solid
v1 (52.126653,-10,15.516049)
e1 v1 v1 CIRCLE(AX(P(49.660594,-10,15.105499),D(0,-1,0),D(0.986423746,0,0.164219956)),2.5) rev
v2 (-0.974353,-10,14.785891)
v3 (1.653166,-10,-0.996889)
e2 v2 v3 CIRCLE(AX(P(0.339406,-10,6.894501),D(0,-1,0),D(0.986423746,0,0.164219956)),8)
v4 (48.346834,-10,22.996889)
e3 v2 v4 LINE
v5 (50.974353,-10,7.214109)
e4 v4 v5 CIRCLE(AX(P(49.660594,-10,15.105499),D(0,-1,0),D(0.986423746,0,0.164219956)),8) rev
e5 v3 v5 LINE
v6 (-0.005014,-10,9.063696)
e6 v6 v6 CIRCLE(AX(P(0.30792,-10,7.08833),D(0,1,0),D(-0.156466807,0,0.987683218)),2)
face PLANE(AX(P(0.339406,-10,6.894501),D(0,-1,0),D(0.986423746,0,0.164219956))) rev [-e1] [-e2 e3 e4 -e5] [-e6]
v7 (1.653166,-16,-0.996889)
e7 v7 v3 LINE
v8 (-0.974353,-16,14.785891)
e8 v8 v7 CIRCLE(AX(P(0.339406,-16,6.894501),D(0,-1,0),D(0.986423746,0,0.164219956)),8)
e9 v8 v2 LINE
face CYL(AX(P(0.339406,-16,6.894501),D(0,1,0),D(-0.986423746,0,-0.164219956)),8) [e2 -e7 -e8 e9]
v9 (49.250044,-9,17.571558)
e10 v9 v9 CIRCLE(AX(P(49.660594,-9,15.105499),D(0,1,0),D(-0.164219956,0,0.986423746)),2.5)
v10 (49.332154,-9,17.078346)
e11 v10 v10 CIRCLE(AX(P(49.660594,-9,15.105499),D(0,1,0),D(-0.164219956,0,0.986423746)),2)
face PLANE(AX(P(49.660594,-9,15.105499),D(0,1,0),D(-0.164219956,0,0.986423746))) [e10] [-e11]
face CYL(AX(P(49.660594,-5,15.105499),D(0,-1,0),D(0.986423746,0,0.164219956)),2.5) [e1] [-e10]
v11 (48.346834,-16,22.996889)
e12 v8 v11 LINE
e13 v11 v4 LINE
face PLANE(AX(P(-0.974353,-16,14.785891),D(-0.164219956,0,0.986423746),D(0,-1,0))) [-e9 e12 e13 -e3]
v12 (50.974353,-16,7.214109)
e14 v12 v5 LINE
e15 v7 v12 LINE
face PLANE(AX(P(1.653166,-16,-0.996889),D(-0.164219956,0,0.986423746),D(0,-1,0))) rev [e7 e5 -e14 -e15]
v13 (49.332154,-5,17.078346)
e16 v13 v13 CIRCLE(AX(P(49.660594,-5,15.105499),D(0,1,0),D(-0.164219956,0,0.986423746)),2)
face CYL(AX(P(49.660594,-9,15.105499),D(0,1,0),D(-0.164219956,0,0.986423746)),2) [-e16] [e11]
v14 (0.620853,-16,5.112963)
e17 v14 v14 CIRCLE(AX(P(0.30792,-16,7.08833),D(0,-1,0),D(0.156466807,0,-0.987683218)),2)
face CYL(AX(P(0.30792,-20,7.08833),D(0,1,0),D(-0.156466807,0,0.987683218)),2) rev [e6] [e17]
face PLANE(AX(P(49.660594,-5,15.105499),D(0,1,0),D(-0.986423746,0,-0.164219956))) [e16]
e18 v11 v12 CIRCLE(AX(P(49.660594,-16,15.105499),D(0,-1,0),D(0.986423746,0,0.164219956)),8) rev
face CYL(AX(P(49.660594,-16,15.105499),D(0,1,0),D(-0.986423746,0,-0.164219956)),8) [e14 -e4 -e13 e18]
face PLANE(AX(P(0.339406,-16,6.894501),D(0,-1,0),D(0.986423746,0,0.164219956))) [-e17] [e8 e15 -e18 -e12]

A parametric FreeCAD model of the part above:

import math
import FreeCAD as App
import Part
import Sketcher
Q = App.Units.Quantity

doc = App.newDocument("Part")
body = doc.addObject("PartDesign::Body", "Body")

# Sketch on XY plane
sketch1 = doc.addObject("Sketcher::SketchObject", "Sketch")
body.addObject(sketch1)
sketch1.AttachmentSupport = (doc.XY_Plane, [""])
sketch1.MapMode = "FlatFace"
sketch1.addGeometry([
    Part.LineSegment(App.Vector(50, 8, 0), App.Vector(0, 8, 0)),
    Part.ArcOfCircle(Part.Circle(App.Vector(0, 0, 0), App.Vector(0, 0, 1), 8), math.radians(90), math.radians(270)),
    Part.LineSegment(App.Vector(0, -8, 0), App.Vector(50, -8, 0)),
    Part.ArcOfCircle(Part.Circle(App.Vector(50, 0, 0), App.Vector(0, 0, 1), 8), math.radians(-90), math.radians(90)),
], False)
sketch1.addConstraint([
    Sketcher.Constraint("Tangent", 0, 2, 1, 1),
    Sketcher.Constraint("Tangent", 1, 2, 2, 1),
    Sketcher.Constraint("Tangent", 2, 2, 3, 1),
    Sketcher.Constraint("Tangent", 3, 2, 0, 1),
    Sketcher.Constraint("Horizontal", 0),
    Sketcher.Constraint("Horizontal", 2),
    Sketcher.Constraint("Coincident", 1, 3, -1, 1),
    Sketcher.Constraint("Radius", 1, Q("8 mm")),
    Sketcher.Constraint("DistanceX", 0, 2, 0, 1, Q("50 mm")),
])
pad1 = doc.addObject("PartDesign::Pad", "Pad")
body.addObject(pad1)
pad1.Profile = sketch1
pad1.Length = 6

# Sketch on XY plane
sketch2 = doc.addObject("Sketcher::SketchObject", "Sketch001")
body.addObject(sketch2)
sketch2.AttachmentSupport = (doc.XY_Plane, [""])
sketch2.MapMode = "FlatFace"
sketch2.addGeometry(Part.Circle(App.Vector(50, 0, 0), App.Vector(0, 0, 1), 2.5), False)
sketch2.addConstraint([
    Sketcher.Constraint("PointOnObject", 0, 3, -1),
    Sketcher.Constraint("Diameter", 0, Q("5 mm")),
    Sketcher.Constraint("DistanceX", -1, 1, 0, 3, Q("50 mm")),
])
pad2 = doc.addObject("PartDesign::Pad", "Pad001")
body.addObject(pad2)
pad2.Profile = sketch2
pad2.Length = 5
pad2.Reversed = True
body2 = doc.addObject("PartDesign::Body", "Body001")
doc.recompute()

body.Placement = App.Placement(App.Vector(0, -11, 11), App.Rotation(App.Vector(-1, 0, 0), 90))
boolean = doc.addObject("PartDesign::Boolean", "Boolean")
body2.addObject(boolean)
boolean.Type = "Fuse"
boolean.addObjects([body])

# Sketch on XZ plane
sketch3 = doc.addObject("Sketcher::SketchObject", "Sketch002")
body2.addObject(sketch3)
sketch3.AttachmentSupport = (doc.getObject("XZ_Plane001"), [""])
sketch3.MapMode = "FlatFace"
sketch3.AttachmentOffset = App.Placement(App.Vector(0, 0, 12), App.Rotation())
sketch3.addGeometry([
    Part.Circle(App.Vector(50, 11, 0), App.Vector(0, 0, 1), 2.5),
    Part.Circle(App.Vector(50, 11, 0), App.Vector(0, 0, 1), 2),
], False)
sketch3.addConstraint([
    Sketcher.Constraint("Coincident", 1, 3, 0, 3),
    Sketcher.Constraint("Diameter", 0, Q("5 mm")),
    Sketcher.Constraint("Diameter", 1, Q("4 mm")),
    Sketcher.Constraint("DistanceX", -1, 1, 0, 3, Q("50 mm")),
    Sketcher.Constraint("DistanceY", -1, 1, 0, 3, Q("11 mm")),
])
pocket1 = doc.addObject("PartDesign::Pocket", "Pocket")
body2.addObject(pocket1)
pocket1.Profile = sketch3
pocket1.Length = 4
pocket1.Reversed = True
body3 = doc.addObject("PartDesign::Body", "Body002")
doc.recompute()

body2.Placement = App.Placement(App.Vector(-1.74546, 0, 5.461013), App.Rotation(App.Vector(0.952528606, 0, 0.304449099), 180))
boolean2 = doc.addObject("PartDesign::Boolean", "Boolean001")
body3.addObject(boolean2)
boolean2.Type = "Fuse"
boolean2.addObjects([body2])
body4 = doc.addObject("PartDesign::Body", "Body003")
doc.recompute()

body3.Placement = App.Placement(App.Vector(-1.788142, 0, 16.328738), App.Rotation(App.Vector(0, 1, 0), 35))
boolean3 = doc.addObject("PartDesign::Boolean", "Boolean002")
body4.addObject(boolean3)
boolean3.Type = "Fuse"
boolean3.addObjects([body3])
body5 = doc.addObject("PartDesign::Body", "Body004")
doc.recompute()

body4.Placement = App.Placement(App.Vector(0, 0, 22), App.Rotation(App.Vector(1, 0, 0), 180))
boolean4 = doc.addObject("PartDesign::Boolean", "Boolean003")
body5.addObject(boolean4)
boolean4.Type = "Fuse"
boolean4.addObjects([body4])

# Sketch on XZ plane
sketch4 = doc.addObject("Sketcher::SketchObject", "Sketch003")
body5.addObject(sketch4)
sketch4.AttachmentSupport = (doc.getObject("XZ_Plane004"), [""])
sketch4.MapMode = "FlatFace"
sketch4.AttachmentOffset = App.Placement(App.Vector(0, 0, 11), App.Rotation())
sketch4.addGeometry(Part.Circle(App.Vector(0, 11, 0), App.Vector(0, 0, 1), 2), False)
sketch4.addConstraint([
    Sketcher.Constraint("PointOnObject", 0, 3, -2),
    Sketcher.Constraint("Diameter", 0, Q("4 mm")),
    Sketcher.Constraint("DistanceY", -1, 1, 0, 3, Q("11 mm")),
])
pocket2 = doc.addObject("PartDesign::Pocket", "Pocket001")
body5.addObject(pocket2)
pocket2.Profile = sketch4
pocket2.Length = 10
body6 = doc.addObject("PartDesign::Body", "Body005")
doc.recompute()

body5.Placement = App.Placement(App.Vector(-1.413215, -21, 17.952845), App.Rotation(App.Vector(0.996916049, 0, 0.078475418), 180))
boolean5 = doc.addObject("PartDesign::Boolean", "Boolean004")
body6.addObject(boolean5)
boolean5.Type = "Fuse"
boolean5.addObjects([body5])

doc.recompute()
